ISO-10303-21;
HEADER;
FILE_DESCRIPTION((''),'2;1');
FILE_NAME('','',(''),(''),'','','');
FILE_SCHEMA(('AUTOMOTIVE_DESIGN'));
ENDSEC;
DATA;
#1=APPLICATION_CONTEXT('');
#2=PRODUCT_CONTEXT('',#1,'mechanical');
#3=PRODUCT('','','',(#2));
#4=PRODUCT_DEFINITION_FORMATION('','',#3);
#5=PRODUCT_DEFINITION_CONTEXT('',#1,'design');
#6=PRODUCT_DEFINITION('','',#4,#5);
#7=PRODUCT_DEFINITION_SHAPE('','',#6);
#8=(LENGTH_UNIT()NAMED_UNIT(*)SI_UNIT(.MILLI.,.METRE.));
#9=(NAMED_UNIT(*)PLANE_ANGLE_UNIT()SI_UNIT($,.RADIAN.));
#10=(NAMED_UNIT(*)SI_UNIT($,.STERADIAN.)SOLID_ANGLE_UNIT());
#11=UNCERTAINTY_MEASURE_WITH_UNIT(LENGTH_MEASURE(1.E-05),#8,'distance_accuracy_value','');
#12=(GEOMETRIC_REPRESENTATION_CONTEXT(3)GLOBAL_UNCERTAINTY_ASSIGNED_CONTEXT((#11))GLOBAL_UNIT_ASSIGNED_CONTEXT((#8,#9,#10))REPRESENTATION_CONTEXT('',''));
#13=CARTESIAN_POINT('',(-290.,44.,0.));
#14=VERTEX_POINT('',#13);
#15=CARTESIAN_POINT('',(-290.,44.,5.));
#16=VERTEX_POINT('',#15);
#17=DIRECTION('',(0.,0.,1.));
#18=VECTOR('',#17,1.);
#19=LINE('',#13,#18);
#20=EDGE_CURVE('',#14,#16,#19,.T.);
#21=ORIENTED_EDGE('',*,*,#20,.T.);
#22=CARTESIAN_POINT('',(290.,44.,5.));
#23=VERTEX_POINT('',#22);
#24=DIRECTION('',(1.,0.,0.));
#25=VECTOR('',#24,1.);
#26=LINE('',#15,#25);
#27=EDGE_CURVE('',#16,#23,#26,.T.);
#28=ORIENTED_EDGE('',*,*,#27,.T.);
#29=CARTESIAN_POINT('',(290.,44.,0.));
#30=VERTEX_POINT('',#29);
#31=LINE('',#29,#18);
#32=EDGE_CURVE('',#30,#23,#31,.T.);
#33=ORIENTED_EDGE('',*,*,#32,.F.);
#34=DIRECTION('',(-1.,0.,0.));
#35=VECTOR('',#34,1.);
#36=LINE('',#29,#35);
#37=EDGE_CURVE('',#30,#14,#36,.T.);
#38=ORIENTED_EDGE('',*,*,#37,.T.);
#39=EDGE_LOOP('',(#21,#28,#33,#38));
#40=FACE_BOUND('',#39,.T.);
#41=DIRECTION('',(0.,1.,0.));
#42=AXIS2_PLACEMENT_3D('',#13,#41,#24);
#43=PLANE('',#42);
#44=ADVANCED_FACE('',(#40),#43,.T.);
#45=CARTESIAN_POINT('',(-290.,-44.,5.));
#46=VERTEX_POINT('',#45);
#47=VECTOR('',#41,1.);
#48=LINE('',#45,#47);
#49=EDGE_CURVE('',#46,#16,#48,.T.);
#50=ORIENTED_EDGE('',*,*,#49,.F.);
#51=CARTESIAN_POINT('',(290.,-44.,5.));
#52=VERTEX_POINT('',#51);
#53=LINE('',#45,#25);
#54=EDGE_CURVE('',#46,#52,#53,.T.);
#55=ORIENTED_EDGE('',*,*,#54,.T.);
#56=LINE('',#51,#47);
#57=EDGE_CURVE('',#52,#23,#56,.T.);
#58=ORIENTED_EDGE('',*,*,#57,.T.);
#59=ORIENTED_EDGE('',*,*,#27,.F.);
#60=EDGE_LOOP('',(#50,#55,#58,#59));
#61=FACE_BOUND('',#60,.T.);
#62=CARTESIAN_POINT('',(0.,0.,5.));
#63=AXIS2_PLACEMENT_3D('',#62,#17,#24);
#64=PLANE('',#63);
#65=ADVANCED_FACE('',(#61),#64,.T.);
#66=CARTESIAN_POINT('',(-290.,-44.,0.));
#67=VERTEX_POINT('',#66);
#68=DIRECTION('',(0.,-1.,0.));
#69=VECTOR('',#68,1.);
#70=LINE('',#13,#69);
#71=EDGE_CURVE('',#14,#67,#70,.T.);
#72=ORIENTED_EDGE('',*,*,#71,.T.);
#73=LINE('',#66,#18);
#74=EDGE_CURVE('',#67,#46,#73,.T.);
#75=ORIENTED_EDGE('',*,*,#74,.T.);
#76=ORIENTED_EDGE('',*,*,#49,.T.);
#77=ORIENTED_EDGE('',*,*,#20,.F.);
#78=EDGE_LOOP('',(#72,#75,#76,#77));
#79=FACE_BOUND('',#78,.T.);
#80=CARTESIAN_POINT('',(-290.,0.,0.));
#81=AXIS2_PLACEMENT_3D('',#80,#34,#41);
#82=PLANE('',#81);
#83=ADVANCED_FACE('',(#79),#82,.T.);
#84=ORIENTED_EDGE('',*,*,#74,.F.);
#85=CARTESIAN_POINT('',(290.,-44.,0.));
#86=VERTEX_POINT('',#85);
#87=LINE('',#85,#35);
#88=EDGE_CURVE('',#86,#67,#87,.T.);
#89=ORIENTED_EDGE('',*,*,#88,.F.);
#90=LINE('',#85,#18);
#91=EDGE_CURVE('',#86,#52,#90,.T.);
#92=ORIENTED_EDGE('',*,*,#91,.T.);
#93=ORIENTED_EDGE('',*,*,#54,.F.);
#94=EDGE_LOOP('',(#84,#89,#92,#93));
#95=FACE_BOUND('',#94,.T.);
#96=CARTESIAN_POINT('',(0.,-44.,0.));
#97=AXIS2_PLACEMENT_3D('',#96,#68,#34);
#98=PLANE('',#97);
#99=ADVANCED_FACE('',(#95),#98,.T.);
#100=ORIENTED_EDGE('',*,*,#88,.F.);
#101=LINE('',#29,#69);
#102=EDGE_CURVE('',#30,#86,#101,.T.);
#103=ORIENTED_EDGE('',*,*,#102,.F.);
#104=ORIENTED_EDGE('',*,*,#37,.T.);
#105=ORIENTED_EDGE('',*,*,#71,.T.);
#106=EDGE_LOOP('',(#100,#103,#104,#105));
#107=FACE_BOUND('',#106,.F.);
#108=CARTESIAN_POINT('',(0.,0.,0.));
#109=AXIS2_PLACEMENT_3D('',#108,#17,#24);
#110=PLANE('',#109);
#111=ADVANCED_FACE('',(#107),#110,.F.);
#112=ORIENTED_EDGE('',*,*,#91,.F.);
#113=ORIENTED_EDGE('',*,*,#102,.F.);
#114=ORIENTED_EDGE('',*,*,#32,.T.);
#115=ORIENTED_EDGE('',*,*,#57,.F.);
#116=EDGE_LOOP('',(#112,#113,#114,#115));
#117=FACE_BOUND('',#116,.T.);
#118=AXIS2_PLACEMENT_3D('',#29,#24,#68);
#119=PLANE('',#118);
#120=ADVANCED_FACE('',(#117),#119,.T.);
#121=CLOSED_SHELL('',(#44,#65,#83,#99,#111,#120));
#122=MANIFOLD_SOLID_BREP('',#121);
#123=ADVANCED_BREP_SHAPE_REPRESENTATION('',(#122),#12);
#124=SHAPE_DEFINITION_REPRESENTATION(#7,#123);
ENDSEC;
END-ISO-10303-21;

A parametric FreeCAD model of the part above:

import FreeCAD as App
import Part
import Sketcher
from FreeCAD import Vector


def add_polygon(sketch, points):
    """Adds a closed chain of lines whose ends are joined by coincident constraints."""
    first, n = sketch.GeometryCount, len(points)
    for a, b in zip(points, points[1:] + points[:1]):
        sketch.addGeometry(Part.LineSegment(App.Vector(*a, 0), App.Vector(*b, 0)), False)
    for i in range(n):
        sketch.addConstraint(Sketcher.Constraint("Coincident", first + i, 2, first + (i + 1) % n, 1))

doc = App.newDocument("Part")
params = doc.addObject("Spreadsheet::Sheet", "Params")
for row, (alias, value) in enumerate([
    ("sketch1_width", "580 mm"),
    ("sketch1_height", "88 mm"),
    ("pad1_length", "5 mm"),
], start=1):
    params.set(f"A{row}", alias)
    params.set(f"B{row}", "=" + value)
    params.setAlias(f"B{row}", alias)

body = doc.addObject("PartDesign::Body", "Body")

sketch1 = doc.addObject("Sketcher::SketchObject", "Sketch")
body.addObject(sketch1)
sketch1.AttachmentSupport = (doc.XY_Plane, [""])
sketch1.MapMode = "FlatFace"
add_polygon(sketch1, [(-290, 44), (-290, -44), (290, -44), (290, 44)])
sketch1.addConstraint([
    Sketcher.Constraint("Vertical", 0),
    Sketcher.Constraint("Horizontal", 1),
    Sketcher.Constraint("Vertical", 2),
    Sketcher.Constraint("Horizontal", 3),
    Sketcher.Constraint("Symmetric", 0, 2, 2, 2, -1, 1),
    Sketcher.Constraint("DistanceX", 1, 1, 1, 2, 580.0),
    Sketcher.Constraint("DistanceY", 0, 2, 0, 1, 88.0),
])
sketch1.setExpression("Constraints[9]", "Params.sketch1_width")
sketch1.setExpression("Constraints[10]", "Params.sketch1_height")
pad1 = doc.addObject("PartDesign::Pad", "Pad")
body.addObject(pad1)
pad1.Profile = sketch1
pad1.setExpression("Length", "Params.pad1_length")

doc.recompute()
